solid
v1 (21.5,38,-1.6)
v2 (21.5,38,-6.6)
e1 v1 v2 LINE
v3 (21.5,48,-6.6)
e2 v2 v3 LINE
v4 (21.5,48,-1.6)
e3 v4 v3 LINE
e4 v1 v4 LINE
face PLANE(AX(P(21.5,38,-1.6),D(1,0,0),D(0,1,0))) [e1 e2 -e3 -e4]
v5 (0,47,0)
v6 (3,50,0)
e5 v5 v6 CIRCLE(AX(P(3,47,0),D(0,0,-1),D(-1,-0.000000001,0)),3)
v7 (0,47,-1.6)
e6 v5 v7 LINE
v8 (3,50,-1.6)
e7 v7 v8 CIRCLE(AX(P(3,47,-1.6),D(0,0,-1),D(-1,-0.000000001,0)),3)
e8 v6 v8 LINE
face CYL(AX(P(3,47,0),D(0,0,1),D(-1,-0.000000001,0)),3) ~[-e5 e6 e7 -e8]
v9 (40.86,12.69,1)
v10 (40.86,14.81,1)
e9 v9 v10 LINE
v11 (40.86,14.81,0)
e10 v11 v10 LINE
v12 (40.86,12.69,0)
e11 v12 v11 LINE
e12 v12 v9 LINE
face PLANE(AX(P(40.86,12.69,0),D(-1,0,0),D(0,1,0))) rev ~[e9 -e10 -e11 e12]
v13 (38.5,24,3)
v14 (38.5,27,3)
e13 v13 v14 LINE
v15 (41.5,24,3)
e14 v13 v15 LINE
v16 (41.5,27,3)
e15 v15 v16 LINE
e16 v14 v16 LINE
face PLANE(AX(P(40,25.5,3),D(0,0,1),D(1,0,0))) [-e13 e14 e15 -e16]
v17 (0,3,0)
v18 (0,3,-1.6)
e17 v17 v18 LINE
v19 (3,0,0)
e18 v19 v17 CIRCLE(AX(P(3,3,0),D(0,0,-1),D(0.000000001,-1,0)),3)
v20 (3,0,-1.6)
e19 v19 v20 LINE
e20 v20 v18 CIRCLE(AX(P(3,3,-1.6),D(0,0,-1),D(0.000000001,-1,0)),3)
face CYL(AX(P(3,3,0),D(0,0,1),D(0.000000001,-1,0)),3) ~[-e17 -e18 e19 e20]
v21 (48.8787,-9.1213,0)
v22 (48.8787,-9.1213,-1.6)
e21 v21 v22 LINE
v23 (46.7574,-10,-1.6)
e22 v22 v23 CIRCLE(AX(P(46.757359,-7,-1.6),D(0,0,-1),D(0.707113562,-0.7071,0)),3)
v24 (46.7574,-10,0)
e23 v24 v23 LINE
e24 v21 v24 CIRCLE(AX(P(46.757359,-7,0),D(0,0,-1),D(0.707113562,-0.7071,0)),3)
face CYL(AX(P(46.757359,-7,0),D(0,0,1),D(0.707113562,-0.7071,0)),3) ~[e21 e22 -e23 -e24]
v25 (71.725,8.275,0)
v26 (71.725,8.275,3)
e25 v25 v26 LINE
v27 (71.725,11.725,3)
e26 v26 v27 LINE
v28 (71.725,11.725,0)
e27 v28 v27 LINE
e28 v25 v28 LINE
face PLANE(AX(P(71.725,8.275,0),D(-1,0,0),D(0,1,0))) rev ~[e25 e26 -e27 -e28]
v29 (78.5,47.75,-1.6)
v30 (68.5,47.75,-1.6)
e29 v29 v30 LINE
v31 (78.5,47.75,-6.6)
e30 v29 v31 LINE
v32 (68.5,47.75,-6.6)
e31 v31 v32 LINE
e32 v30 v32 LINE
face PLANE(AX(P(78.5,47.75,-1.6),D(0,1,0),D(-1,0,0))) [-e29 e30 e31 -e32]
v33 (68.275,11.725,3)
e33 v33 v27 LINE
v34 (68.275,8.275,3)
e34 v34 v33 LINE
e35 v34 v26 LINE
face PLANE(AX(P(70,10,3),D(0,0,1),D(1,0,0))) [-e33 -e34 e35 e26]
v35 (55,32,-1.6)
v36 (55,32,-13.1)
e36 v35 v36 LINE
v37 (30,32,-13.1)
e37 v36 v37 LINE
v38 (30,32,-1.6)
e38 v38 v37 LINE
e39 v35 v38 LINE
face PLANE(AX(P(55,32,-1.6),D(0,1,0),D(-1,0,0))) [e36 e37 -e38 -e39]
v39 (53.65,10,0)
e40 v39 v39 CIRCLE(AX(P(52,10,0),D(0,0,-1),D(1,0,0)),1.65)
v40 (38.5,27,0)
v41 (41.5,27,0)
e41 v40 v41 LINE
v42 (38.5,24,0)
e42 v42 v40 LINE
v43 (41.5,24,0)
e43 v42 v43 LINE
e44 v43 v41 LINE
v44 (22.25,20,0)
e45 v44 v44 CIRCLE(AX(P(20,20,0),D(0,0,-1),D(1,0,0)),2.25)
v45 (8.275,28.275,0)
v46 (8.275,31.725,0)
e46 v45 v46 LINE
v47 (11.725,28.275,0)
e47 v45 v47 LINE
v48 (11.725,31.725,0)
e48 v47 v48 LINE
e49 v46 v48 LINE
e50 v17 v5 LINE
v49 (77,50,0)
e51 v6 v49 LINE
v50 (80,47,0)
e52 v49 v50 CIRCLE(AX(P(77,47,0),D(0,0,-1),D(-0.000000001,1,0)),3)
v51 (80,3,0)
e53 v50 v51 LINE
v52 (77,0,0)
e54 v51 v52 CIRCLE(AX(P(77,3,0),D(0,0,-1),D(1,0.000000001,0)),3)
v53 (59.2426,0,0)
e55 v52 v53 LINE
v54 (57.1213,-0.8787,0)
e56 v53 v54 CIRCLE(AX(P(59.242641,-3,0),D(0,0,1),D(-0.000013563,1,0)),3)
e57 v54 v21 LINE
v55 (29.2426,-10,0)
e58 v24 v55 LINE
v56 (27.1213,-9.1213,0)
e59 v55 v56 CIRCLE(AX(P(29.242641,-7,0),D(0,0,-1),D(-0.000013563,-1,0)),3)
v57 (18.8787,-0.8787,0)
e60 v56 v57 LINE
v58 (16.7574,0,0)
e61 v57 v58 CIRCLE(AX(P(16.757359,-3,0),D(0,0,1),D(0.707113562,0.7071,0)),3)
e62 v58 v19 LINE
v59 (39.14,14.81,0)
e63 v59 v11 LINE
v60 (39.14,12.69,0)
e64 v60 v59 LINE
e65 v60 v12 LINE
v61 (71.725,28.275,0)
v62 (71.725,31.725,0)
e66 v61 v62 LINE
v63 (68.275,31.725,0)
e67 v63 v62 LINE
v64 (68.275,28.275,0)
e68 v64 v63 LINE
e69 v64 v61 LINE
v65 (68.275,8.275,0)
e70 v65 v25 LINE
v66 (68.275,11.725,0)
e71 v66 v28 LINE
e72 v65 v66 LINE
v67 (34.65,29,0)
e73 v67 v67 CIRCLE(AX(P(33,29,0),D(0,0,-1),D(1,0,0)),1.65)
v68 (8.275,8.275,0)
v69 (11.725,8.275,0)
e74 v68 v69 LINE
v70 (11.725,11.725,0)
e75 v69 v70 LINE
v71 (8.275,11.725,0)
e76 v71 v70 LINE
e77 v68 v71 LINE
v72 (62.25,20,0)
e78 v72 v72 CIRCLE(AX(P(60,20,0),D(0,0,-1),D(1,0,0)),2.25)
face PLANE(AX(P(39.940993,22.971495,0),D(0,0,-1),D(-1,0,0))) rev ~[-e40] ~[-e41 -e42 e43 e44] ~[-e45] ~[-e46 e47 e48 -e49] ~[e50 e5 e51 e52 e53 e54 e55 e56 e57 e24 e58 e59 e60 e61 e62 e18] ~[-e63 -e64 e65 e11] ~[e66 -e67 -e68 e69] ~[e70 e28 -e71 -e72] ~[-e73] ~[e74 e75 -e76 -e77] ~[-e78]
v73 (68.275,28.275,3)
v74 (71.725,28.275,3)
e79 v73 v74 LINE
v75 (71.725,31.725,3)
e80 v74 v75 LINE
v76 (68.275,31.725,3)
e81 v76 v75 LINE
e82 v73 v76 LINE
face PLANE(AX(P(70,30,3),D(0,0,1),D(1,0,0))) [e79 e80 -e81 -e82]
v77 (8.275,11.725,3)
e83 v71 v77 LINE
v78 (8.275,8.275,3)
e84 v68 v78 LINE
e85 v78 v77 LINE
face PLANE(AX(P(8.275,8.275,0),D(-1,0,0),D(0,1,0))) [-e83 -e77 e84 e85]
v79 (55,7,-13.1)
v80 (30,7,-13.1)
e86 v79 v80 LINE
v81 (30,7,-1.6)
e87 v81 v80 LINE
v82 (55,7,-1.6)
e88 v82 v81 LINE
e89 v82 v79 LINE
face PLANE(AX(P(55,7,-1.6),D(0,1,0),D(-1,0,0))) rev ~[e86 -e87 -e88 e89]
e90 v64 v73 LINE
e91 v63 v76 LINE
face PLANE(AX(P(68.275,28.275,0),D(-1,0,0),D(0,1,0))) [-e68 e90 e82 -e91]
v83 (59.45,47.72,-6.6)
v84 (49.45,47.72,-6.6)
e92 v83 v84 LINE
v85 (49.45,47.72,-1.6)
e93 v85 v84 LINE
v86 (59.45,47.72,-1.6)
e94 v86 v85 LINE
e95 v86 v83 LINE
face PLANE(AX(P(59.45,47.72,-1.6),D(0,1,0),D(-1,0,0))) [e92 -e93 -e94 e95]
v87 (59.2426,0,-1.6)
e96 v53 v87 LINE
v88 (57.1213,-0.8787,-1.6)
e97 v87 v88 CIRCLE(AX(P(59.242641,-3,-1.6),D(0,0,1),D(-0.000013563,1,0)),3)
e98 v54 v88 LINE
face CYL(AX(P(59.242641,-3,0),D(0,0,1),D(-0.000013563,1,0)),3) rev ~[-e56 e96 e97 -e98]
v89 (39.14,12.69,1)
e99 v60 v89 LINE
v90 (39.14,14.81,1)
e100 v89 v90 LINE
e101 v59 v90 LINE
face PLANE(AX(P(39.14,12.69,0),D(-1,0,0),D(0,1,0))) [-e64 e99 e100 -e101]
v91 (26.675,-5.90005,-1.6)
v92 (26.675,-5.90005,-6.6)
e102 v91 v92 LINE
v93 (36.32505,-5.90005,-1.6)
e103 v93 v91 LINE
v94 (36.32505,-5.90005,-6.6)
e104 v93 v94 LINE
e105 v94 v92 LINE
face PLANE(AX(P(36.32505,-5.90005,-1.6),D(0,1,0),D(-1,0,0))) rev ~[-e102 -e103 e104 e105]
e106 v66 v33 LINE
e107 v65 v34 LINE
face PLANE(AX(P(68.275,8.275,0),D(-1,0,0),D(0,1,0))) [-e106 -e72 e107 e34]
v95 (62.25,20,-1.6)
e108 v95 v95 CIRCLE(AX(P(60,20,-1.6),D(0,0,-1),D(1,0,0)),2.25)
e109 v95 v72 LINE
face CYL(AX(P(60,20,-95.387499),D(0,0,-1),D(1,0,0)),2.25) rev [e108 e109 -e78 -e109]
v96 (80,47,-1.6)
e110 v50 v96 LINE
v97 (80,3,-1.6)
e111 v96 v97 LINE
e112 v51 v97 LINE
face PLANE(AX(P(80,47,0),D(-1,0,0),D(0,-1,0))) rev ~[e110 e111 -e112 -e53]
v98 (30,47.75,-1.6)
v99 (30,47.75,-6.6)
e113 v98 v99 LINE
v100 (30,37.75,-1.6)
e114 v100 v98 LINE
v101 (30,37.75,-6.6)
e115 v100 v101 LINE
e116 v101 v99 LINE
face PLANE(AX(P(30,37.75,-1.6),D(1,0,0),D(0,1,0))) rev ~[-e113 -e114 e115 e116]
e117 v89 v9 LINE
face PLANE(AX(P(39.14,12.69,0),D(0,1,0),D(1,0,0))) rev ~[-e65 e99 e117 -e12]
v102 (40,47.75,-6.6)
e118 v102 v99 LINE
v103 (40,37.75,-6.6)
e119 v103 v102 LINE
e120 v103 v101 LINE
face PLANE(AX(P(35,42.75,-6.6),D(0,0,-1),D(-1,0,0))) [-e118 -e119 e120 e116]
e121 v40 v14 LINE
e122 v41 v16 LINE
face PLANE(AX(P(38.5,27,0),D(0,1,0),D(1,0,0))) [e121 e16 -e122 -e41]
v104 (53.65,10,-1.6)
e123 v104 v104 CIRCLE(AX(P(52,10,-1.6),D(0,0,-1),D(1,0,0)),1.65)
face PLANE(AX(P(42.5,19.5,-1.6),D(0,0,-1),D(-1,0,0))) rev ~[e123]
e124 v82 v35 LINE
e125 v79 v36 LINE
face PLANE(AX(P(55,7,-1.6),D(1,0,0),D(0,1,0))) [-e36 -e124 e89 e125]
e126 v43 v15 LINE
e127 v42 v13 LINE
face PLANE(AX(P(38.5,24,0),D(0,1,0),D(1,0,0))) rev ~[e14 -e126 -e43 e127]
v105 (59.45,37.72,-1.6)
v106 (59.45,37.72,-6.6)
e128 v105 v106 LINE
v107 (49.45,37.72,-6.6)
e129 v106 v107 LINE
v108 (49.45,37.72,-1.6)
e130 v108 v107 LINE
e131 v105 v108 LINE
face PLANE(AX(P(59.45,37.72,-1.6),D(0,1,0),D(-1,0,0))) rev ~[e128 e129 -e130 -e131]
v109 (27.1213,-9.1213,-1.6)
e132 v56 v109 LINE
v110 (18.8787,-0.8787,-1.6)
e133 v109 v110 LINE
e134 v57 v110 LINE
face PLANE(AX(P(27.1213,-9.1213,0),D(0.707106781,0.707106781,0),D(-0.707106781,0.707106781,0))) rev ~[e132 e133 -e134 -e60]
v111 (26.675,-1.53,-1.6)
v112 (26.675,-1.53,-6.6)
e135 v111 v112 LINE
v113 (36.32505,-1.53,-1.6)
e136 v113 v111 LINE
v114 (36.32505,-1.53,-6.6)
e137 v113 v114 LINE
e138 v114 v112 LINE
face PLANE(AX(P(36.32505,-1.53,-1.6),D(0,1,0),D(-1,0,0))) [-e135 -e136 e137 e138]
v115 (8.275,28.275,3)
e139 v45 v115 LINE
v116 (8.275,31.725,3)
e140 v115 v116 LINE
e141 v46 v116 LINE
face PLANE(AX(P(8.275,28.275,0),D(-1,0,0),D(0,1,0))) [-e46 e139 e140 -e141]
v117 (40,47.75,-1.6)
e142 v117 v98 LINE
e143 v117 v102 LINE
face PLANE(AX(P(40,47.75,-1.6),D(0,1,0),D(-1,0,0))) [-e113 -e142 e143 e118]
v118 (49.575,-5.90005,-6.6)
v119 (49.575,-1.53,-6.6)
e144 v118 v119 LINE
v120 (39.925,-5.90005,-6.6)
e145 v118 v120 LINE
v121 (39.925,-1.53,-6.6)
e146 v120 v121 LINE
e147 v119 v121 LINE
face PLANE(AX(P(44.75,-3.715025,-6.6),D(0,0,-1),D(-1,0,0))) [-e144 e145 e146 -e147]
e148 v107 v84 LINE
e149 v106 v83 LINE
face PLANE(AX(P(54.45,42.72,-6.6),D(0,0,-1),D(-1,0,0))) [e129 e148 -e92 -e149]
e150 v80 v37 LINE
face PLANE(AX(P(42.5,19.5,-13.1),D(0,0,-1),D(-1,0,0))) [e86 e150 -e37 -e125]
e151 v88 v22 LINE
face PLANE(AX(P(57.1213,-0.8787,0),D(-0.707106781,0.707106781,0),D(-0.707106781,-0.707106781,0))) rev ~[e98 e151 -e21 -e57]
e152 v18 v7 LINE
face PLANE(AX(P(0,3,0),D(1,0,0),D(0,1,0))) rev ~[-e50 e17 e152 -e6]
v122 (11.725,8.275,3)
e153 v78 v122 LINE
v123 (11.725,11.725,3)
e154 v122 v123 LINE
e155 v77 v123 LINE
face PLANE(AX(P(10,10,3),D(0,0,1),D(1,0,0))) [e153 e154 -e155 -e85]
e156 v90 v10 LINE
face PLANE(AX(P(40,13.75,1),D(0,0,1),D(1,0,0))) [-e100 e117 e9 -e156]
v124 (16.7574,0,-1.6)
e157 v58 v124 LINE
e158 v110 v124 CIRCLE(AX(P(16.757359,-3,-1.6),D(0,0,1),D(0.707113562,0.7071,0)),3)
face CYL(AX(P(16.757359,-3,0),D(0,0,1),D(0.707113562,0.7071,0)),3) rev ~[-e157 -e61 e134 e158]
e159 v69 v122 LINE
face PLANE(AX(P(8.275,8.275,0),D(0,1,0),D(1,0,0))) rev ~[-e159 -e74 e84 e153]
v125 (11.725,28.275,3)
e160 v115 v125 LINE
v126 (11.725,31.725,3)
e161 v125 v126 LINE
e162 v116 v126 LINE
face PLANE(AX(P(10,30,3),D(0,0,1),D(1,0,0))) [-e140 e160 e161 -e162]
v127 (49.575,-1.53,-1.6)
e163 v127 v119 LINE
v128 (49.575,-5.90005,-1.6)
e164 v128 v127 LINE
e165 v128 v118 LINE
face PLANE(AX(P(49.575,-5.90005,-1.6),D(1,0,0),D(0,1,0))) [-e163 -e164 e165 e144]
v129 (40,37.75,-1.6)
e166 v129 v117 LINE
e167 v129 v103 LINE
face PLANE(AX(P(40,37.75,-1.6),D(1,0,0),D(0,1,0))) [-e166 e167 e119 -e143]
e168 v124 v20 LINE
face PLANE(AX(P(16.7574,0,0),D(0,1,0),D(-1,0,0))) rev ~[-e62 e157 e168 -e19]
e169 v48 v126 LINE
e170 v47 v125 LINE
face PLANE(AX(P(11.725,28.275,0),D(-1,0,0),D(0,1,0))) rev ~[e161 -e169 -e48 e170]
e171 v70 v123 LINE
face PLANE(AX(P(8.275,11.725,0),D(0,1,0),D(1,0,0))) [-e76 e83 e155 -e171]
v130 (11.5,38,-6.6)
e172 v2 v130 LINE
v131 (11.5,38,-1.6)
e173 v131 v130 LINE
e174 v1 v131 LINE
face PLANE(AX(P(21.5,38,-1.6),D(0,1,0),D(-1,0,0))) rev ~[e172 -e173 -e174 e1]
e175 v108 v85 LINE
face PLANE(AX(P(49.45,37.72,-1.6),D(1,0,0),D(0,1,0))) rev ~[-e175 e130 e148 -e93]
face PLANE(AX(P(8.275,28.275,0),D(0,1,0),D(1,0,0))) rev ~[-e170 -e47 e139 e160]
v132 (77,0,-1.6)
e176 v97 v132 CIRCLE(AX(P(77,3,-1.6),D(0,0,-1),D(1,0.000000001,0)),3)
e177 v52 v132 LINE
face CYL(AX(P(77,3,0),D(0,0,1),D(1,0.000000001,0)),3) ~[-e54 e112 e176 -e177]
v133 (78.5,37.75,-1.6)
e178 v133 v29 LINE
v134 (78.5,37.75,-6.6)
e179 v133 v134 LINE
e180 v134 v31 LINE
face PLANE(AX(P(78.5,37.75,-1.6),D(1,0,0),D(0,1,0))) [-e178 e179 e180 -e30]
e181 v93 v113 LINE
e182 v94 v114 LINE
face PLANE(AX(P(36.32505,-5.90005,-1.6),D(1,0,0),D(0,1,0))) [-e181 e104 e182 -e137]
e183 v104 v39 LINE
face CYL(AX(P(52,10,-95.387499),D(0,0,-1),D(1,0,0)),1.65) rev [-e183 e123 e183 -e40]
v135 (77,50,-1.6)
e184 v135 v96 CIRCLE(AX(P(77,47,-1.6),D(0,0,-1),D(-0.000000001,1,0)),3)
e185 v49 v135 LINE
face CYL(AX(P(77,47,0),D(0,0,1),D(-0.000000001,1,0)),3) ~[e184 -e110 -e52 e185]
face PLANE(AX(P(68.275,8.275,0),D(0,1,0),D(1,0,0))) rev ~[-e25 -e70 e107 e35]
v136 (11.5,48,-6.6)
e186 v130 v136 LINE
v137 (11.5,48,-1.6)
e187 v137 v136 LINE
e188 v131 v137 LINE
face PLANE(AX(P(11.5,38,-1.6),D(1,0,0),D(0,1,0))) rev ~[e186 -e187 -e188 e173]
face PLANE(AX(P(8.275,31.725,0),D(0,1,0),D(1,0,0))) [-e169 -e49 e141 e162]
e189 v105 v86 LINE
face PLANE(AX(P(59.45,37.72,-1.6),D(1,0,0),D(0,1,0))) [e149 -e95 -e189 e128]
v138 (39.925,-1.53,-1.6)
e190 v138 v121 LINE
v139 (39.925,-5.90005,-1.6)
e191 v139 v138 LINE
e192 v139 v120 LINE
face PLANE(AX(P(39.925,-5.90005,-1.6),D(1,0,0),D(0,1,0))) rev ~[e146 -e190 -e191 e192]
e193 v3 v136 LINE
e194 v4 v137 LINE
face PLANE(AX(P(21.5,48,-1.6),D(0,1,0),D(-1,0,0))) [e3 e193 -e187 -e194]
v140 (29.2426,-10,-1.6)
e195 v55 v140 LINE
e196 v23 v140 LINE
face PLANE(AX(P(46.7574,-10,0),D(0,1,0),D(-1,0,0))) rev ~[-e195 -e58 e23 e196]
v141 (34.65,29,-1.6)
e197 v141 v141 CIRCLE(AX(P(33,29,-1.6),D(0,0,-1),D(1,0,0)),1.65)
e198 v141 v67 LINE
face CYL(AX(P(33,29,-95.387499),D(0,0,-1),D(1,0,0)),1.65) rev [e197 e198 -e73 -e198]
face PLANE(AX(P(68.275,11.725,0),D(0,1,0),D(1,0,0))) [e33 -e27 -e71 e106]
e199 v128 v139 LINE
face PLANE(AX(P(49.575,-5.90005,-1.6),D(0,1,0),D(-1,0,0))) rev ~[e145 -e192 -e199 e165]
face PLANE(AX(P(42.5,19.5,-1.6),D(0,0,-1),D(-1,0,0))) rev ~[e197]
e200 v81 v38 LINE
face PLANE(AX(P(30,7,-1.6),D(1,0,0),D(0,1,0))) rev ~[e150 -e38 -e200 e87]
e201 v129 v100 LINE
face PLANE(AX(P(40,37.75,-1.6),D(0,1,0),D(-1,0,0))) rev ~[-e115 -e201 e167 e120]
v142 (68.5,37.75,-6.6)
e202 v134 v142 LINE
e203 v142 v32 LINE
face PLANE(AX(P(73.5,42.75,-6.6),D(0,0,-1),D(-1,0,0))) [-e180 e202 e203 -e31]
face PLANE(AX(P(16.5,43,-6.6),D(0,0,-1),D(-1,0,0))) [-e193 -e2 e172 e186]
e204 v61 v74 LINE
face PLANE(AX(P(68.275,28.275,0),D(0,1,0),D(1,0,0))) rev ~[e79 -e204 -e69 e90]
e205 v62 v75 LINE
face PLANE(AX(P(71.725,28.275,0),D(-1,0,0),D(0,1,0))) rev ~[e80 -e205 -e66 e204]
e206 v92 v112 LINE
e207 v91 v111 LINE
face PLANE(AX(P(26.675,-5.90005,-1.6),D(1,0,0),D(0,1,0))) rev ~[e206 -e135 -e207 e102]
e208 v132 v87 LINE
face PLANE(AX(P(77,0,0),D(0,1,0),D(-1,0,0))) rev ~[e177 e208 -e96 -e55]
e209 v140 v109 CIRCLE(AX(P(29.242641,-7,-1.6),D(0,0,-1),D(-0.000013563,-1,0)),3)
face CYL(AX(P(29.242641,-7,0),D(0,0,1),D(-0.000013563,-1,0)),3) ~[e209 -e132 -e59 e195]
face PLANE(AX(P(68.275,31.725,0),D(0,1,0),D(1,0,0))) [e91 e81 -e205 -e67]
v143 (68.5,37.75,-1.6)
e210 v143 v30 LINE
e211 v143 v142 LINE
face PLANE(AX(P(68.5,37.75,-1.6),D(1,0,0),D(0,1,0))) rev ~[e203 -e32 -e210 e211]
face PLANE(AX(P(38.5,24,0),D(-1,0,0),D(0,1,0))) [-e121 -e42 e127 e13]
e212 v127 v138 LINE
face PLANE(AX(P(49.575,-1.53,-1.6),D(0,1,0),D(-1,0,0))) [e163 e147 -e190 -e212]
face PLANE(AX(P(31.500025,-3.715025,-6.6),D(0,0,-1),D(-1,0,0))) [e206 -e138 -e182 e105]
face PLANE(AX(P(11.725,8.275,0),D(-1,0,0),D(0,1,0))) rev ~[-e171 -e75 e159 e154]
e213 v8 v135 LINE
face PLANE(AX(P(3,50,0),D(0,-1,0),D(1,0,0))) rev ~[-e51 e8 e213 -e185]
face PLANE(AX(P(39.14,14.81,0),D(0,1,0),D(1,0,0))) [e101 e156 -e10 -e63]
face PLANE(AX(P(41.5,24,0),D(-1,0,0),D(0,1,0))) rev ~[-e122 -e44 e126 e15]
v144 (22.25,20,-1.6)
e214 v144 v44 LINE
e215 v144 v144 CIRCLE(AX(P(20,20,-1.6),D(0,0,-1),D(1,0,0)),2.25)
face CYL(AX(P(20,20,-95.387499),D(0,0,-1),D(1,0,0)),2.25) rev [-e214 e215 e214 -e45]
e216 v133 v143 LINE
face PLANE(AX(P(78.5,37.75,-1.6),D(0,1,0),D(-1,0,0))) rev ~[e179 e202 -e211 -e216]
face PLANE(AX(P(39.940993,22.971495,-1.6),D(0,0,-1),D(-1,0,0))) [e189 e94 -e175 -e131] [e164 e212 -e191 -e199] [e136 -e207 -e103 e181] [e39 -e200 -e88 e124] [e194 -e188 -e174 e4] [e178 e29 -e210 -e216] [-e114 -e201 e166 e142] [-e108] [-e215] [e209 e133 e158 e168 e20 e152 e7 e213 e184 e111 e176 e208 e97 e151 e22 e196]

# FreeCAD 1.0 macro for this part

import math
import FreeCAD as App
import Part
import Sketcher

V = App.Vector

doc = App.newDocument("Part")
body = doc.addObject("PartDesign::Body", "Body")

# Sketch on XY plane
sketch1 = doc.addObject("Sketcher::SketchObject", "Sketch")
body.addObject(sketch1)
sketch1.AttachmentSupport = (doc.XY_Plane, [""])
sketch1.MapMode = "FlatFace"
sketch1.addGeometry(Part.LineSegment(V(0, 47, 0), V(0, 3, 0)), False)
sketch1.addGeometry(Part.ArcOfCircle(Part.Circle(V(3, 3, 0), V(0, 0, 1), 3), math.radians(180), math.radians(270)), False)
sketch1.addGeometry(Part.LineSegment(V(3, 0, 0), V(16.8, 0, 0)), False)
sketch1.addGeometry(Part.ArcOfCircle(Part.Circle(V(16.8, -3, 0), V(0, 0, 1), 3), math.radians(45), math.radians(90)), False)
sketch1.addGeometry(Part.LineSegment(V(18.9, -0.9, 0), V(27.1, -9.1, 0)), False)
sketch1.addGeometry(Part.ArcOfCircle(Part.Circle(V(29.2, -7, 0), V(0, 0, 1), 3), math.radians(-135), math.radians(-90)), False)
sketch1.addGeometry(Part.LineSegment(V(29.2, -10, 0), V(46.8, -10, 0)), False)
sketch1.addGeometry(Part.ArcOfCircle(Part.Circle(V(46.8, -7, 0), V(0, 0, 1), 3), math.radians(-90), math.radians(-45)), False)
sketch1.addGeometry(Part.LineSegment(V(48.9, -9.1, 0), V(57.1, -0.9, 0)), False)
sketch1.addGeometry(Part.ArcOfCircle(Part.Circle(V(59.2, -3, 0), V(0, 0, 1), 3), math.radians(90), math.radians(135)), False)
sketch1.addGeometry(Part.LineSegment(V(59.2, 0, 0), V(77, 0, 0)), False)
sketch1.addGeometry(Part.ArcOfCircle(Part.Circle(V(77, 3, 0), V(0, 0, 1), 3), math.radians(-90), math.radians(0)), False)
sketch1.addGeometry(Part.LineSegment(V(80, 3, 0), V(80, 47, 0)), False)
sketch1.addGeometry(Part.ArcOfCircle(Part.Circle(V(77, 47, 0), V(0, 0, 1), 3), math.radians(0), math.radians(90)), False)
sketch1.addGeometry(Part.LineSegment(V(77, 50, 0), V(3, 50, 0)), False)
sketch1.addGeometry(Part.ArcOfCircle(Part.Circle(V(3, 47, 0), V(0, 0, 1), 3), math.radians(90), math.radians(180)), False)
sketch1.addConstraint(Sketcher.Constraint("Tangent", 0, 2, 1, 1))
sketch1.addConstraint(Sketcher.Constraint("Tangent", 1, 2, 2, 1))
sketch1.addConstraint(Sketcher.Constraint("Coincident", 2, 2, 3, 2))
sketch1.addConstraint(Sketcher.Constraint("Coincident", 3, 1, 4, 1))
sketch1.addConstraint(Sketcher.Constraint("Coincident", 4, 2, 5, 1))
sketch1.addConstraint(Sketcher.Constraint("Coincident", 5, 2, 6, 1))
sketch1.addConstraint(Sketcher.Constraint("Coincident", 6, 2, 7, 1))
sketch1.addConstraint(Sketcher.Constraint("Coincident", 7, 2, 8, 1))
sketch1.addConstraint(Sketcher.Constraint("Coincident", 8, 2, 9, 2))
sketch1.addConstraint(Sketcher.Constraint("Coincident", 9, 1, 10, 1))
sketch1.addConstraint(Sketcher.Constraint("Tangent", 10, 2, 11, 1))
sketch1.addConstraint(Sketcher.Constraint("Tangent", 11, 2, 12, 1))
sketch1.addConstraint(Sketcher.Constraint("Tangent", 12, 2, 13, 1))
sketch1.addConstraint(Sketcher.Constraint("Tangent", 13, 2, 14, 1))
sketch1.addConstraint(Sketcher.Constraint("Tangent", 14, 2, 15, 1))
sketch1.addConstraint(Sketcher.Constraint("Tangent", 15, 2, 0, 1))
sketch1.addConstraint(Sketcher.Constraint("Vertical", 0))
sketch1.addConstraint(Sketcher.Constraint("Horizontal", 2))
sketch1.addConstraint(Sketcher.Constraint("Horizontal", 6))
sketch1.addConstraint(Sketcher.Constraint("Horizontal", 10))
sketch1.addConstraint(Sketcher.Constraint("Vertical", 12))
sketch1.addConstraint(Sketcher.Constraint("Horizontal", 14))
sketch1.addConstraint(Sketcher.Constraint("Equal", 1, 3))
sketch1.addConstraint(Sketcher.Constraint("Equal", 3, 5))
sketch1.addConstraint(Sketcher.Constraint("Equal", 5, 7))
sketch1.addConstraint(Sketcher.Constraint("Equal", 7, 9))
sketch1.addConstraint(Sketcher.Constraint("Equal", 9, 11))
sketch1.addConstraint(Sketcher.Constraint("Equal", 11, 13))
sketch1.addConstraint(Sketcher.Constraint("Equal", 13, 15))
sketch1.addConstraint(Sketcher.Constraint("PointOnObject", 0, 2, -2))
sketch1.addConstraint(Sketcher.Constraint("PointOnObject", 1, 2, -1))
sketch1.addConstraint(Sketcher.Constraint("PointOnObject", 9, 1, -1))
sketch1.addConstraint(Sketcher.Constraint("Perpendicular", 4, 8))
sketch1.addConstraint(Sketcher.Constraint("Horizontal", 4, 2, 7, 2))
sketch1.addConstraint(Sketcher.Constraint("Horizontal", 3, 1, 8, 2))
sketch1.addConstraint(Sketcher.Constraint("Equal", 4, 8))
sketch1.addConstraint(Sketcher.Constraint("Radius", 1, 3.0))
sketch1.addConstraint(Sketcher.Constraint("DistanceX", 14, 2, 14, 1, 74.0))
sketch1.addConstraint(Sketcher.Constraint("DistanceY", 0, 2, 0, 1, 44.0))
sketch1.addConstraint(Sketcher.Constraint("DistanceY", 5, 3, -1, 1, 7.0))
sketch1.addConstraint(Sketcher.Constraint("DistanceX", 3, 3, 7, 3, 30.0))
sketch1.addConstraint(Sketcher.Constraint("DistanceX", 2, 1, 2, 2, 13.7574))
sketch1.addConstraint(Sketcher.Constraint("DistanceX", 6, 1, 6, 2, 17.5148))
sketch1.addConstraint(Sketcher.Constraint("DistanceX", 10, 1, 10, 2, 17.7574))
sketch1.addConstraint(Sketcher.Constraint("DistanceX", -1, 1, 3, 1, 18.8787))
sketch1.addConstraint(Sketcher.Constraint("DistanceY", 3, 1, -1, 1, 0.8787))
sketch1.addConstraint(Sketcher.Constraint("DistanceX", -1, 1, 4, 2, 27.1213))
sketch1.addConstraint(Sketcher.Constraint("DistanceX", -1, 1, 5, 2, 29.2426))
pad1 = doc.addObject("PartDesign::Pad", "Pad")
body.addObject(pad1)
pad1.Profile = sketch1
pad1.Length = 1.6
pad1.Reversed = True

# Sketch on XY plane
sketch2 = doc.addObject("Sketcher::SketchObject", "Sketch001")
body.addObject(sketch2)
sketch2.AttachmentSupport = (doc.XY_Plane, [""])
sketch2.MapMode = "FlatFace"
sketch2.addGeometry(Part.LineSegment(V(8.3, 11.7, 0), V(8.3, 8.3, 0)), False)
sketch2.addGeometry(Part.LineSegment(V(8.3, 8.3, 0), V(11.7, 8.3, 0)), False)
sketch2.addGeometry(Part.LineSegment(V(11.7, 8.3, 0), V(11.7, 11.7, 0)), False)
sketch2.addGeometry(Part.LineSegment(V(11.7, 11.7, 0), V(8.3, 11.7, 0)), False)
sketch2.addGeometry(Part.LineSegment(V(8.3, 31.7, 0), V(8.3, 28.3, 0)), False)
sketch2.addGeometry(Part.LineSegment(V(8.3, 28.3, 0), V(11.7, 28.3, 0)), False)
sketch2.addGeometry(Part.LineSegment(V(11.7, 28.3, 0), V(11.7, 31.7, 0)), False)
sketch2.addGeometry(Part.LineSegment(V(11.7, 31.7, 0), V(8.3, 31.7, 0)), False)
sketch2.addConstraint(Sketcher.Constraint("Coincident", 0, 2, 1, 1))
sketch2.addConstraint(Sketcher.Constraint("Coincident", 1, 2, 2, 1))
sketch2.addConstraint(Sketcher.Constraint("Coincident", 2, 2, 3, 1))
sketch2.addConstraint(Sketcher.Constraint("Coincident", 3, 2, 0, 1))
sketch2.addConstraint(Sketcher.Constraint("Coincident", 4, 2, 5, 1))
sketch2.addConstraint(Sketcher.Constraint("Coincident", 5, 2, 6, 1))
sketch2.addConstraint(Sketcher.Constraint("Coincident", 6, 2, 7, 1))
sketch2.addConstraint(Sketcher.Constraint("Coincident", 7, 2, 4, 1))
sketch2.addConstraint(Sketcher.Constraint("Vertical", 0))
sketch2.addConstraint(Sketcher.Constraint("Horizontal", 1))
sketch2.addConstraint(Sketcher.Constraint("Vertical", 2))
sketch2.addConstraint(Sketcher.Constraint("Horizontal", 3))
sketch2.addConstraint(Sketcher.Constraint("Vertical", 4))
sketch2.addConstraint(Sketcher.Constraint("Horizontal", 5))
sketch2.addConstraint(Sketcher.Constraint("Vertical", 6))
sketch2.addConstraint(Sketcher.Constraint("Horizontal", 7))
sketch2.addConstraint(Sketcher.Constraint("Vertical", 3, 2, 4, 2))
sketch2.addConstraint(Sketcher.Constraint("Vertical", 2, 2, 5, 2))
sketch2.addConstraint(Sketcher.Constraint("Equal", 7, 0))
sketch2.addConstraint(Sketcher.Constraint("Equal", 2, 4))
sketch2.addConstraint(Sketcher.Constraint("DistanceY", 0, 2, 4, 2, 20.0))
sketch2.addConstraint(Sketcher.Constraint("DistanceX", 1, 1, 1, 2, 3.45))
sketch2.addConstraint(Sketcher.Constraint("DistanceX", -1, 1, 0, 2, 8.275))
sketch2.addConstraint(Sketcher.Constraint("DistanceY", -1, 1, 0, 2, 8.275))
pad2 = doc.addObject("PartDesign::Pad", "Pad001")
body.addObject(pad2)
pad2.Profile = sketch2
pad2.Length = 3

# Sketch on XY plane
sketch3 = doc.addObject("Sketcher::SketchObject", "Sketch002")
body.addObject(sketch3)
sketch3.AttachmentSupport = (doc.XY_Plane, [""])
sketch3.MapMode = "FlatFace"
sketch3.addGeometry(Part.LineSegment(V(68.3, 11.7, 0), V(68.3, 8.3, 0)), False)
sketch3.addGeometry(Part.LineSegment(V(68.3, 8.3, 0), V(71.7, 8.3, 0)), False)
sketch3.addGeometry(Part.LineSegment(V(71.7, 8.3, 0), V(71.7, 11.7, 0)), False)
sketch3.addGeometry(Part.LineSegment(V(71.7, 11.7, 0), V(68.3, 11.7, 0)), False)
sketch3.addGeometry(Part.LineSegment(V(68.3, 31.7, 0), V(68.3, 28.3, 0)), False)
sketch3.addGeometry(Part.LineSegment(V(68.3, 28.3, 0), V(71.7, 28.3, 0)), False)
sketch3.addGeometry(Part.LineSegment(V(71.7, 28.3, 0), V(71.7, 31.7, 0)), False)
sketch3.addGeometry(Part.LineSegment(V(71.7, 31.7, 0), V(68.3, 31.7, 0)), False)
sketch3.addConstraint(Sketcher.Constraint("Coincident", 0, 2, 1, 1))
sketch3.addConstraint(Sketcher.Constraint("Coincident", 1, 2, 2, 1))
sketch3.addConstraint(Sketcher.Constraint("Coincident", 2, 2, 3, 1))
sketch3.addConstraint(Sketcher.Constraint("Coincident", 3, 2, 0, 1))
sketch3.addConstraint(Sketcher.Constraint("Coincident", 4, 2, 5, 1))
sketch3.addConstraint(Sketcher.Constraint("Coincident", 5, 2, 6, 1))
sketch3.addConstraint(Sketcher.Constraint("Coincident", 6, 2, 7, 1))
sketch3.addConstraint(Sketcher.Constraint("Coincident", 7, 2, 4, 1))
sketch3.addConstraint(Sketcher.Constraint("Vertical", 0))
sketch3.addConstraint(Sketcher.Constraint("Horizontal", 1))
sketch3.addConstraint(Sketcher.Constraint("Vertical", 2))
sketch3.addConstraint(Sketcher.Constraint("Horizontal", 3))
sketch3.addConstraint(Sketcher.Constraint("Vertical", 4))
sketch3.addConstraint(Sketcher.Constraint("Horizontal", 5))
sketch3.addConstraint(Sketcher.Constraint("Vertical", 6))
sketch3.addConstraint(Sketcher.Constraint("Horizontal", 7))
sketch3.addConstraint(Sketcher.Constraint("Vertical", 3, 2, 4, 2))
sketch3.addConstraint(Sketcher.Constraint("Vertical", 2, 2, 5, 2))
sketch3.addConstraint(Sketcher.Constraint("Equal", 7, 0))
sketch3.addConstraint(Sketcher.Constraint("Equal", 2, 4))
sketch3.addConstraint(Sketcher.Constraint("DistanceY", 0, 2, 4, 2, 20.0))
sketch3.addConstraint(Sketcher.Constraint("DistanceX", 1, 1, 1, 2, 3.45))
sketch3.addConstraint(Sketcher.Constraint("DistanceX", -1, 1, 0, 2, 68.275))
sketch3.addConstraint(Sketcher.Constraint("DistanceY", -1, 1, 0, 2, 8.275))
pad3 = doc.addObject("PartDesign::Pad", "Pad002")
body.addObject(pad3)
pad3.Profile = sketch3
pad3.Length = 3

# Sketch on XY plane
sketch4 = doc.addObject("Sketcher::SketchObject", "Sketch003")
body.addObject(sketch4)
sketch4.AttachmentSupport = (doc.XY_Plane, [""])
sketch4.MapMode = "FlatFace"
sketch4.addGeometry(Part.LineSegment(V(38.5, 27, 0), V(38.5, 24, 0)), False)
sketch4.addGeometry(Part.LineSegment(V(38.5, 24, 0), V(41.5, 24, 0)), False)
sketch4.addGeometry(Part.LineSegment(V(41.5, 24, 0), V(41.5, 27, 0)), False)
sketch4.addGeometry(Part.LineSegment(V(41.5, 27, 0), V(38.5, 27, 0)), False)
sketch4.addConstraint(Sketcher.Constraint("Coincident", 0, 2, 1, 1))
sketch4.addConstraint(Sketcher.Constraint("Coincident", 1, 2, 2, 1))
sketch4.addConstraint(Sketcher.Constraint("Coincident", 2, 2, 3, 1))
sketch4.addConstraint(Sketcher.Constraint("Coincident", 3, 2, 0, 1))
sketch4.addConstraint(Sketcher.Constraint("Vertical", 0))
sketch4.addConstraint(Sketcher.Constraint("Horizontal", 1))
sketch4.addConstraint(Sketcher.Constraint("Vertical", 2))
sketch4.addConstraint(Sketcher.Constraint("Horizontal", 3))
sketch4.addConstraint(Sketcher.Constraint("Equal", 3, 0))
sketch4.addConstraint(Sketcher.Constraint("DistanceX", 1, 1, 1, 2, 3.0))
sketch4.addConstraint(Sketcher.Constraint("DistanceY", -1, 1, 0, 2, 24.0))
sketch4.addConstraint(Sketcher.Constraint("DistanceX", -1, 1, 0, 2, 38.5))
pad4 = doc.addObject("PartDesign::Pad", "Pad003")
body.addObject(pad4)
pad4.Profile = sketch4
pad4.Length = 3

# Sketch on XY plane
sketch5 = doc.addObject("Sketcher::SketchObject", "Sketch004")
body.addObject(sketch5)
sketch5.AttachmentSupport = (doc.XY_Plane, [""])
sketch5.MapMode = "FlatFace"
sketch5.addGeometry(Part.LineSegment(V(39.1, 14.8, 0), V(39.1, 12.7, 0)), False)
sketch5.addGeometry(Part.LineSegment(V(39.1, 12.7, 0), V(40.9, 12.7, 0)), False)
sketch5.addGeometry(Part.LineSegment(V(40.9, 12.7, 0), V(40.9, 14.8, 0)), False)
sketch5.addGeometry(Part.LineSegment(V(40.9, 14.8, 0), V(39.1, 14.8, 0)), False)
sketch5.addConstraint(Sketcher.Constraint("Coincident", 0, 2, 1, 1))
sketch5.addConstraint(Sketcher.Constraint("Coincident", 1, 2, 2, 1))
sketch5.addConstraint(Sketcher.Constraint("Coincident", 2, 2, 3, 1))
sketch5.addConstraint(Sketcher.Constraint("Coincident", 3, 2, 0, 1))
sketch5.addConstraint(Sketcher.Constraint("Vertical", 0))
sketch5.addConstraint(Sketcher.Constraint("Horizontal", 1))
sketch5.addConstraint(Sketcher.Constraint("Vertical", 2))
sketch5.addConstraint(Sketcher.Constraint("Horizontal", 3))
sketch5.addConstraint(Sketcher.Constraint("DistanceX", 1, 1, 1, 2, 1.72))
sketch5.addConstraint(Sketcher.Constraint("DistanceY", 0, 2, 0, 1, 2.12))
sketch5.addConstraint(Sketcher.Constraint("DistanceX", -1, 1, 0, 2, 39.14))
sketch5.addConstraint(Sketcher.Constraint("DistanceY", -1, 1, 0, 2, 12.69))
pad5 = doc.addObject("PartDesign::Pad", "Pad004")
body.addObject(pad5)
pad5.Profile = sketch5
pad5.Length = 1

# Sketch on XY plane
sketch6 = doc.addObject("Sketcher::SketchObject", "Sketch005")
body.addObject(sketch6)
sketch6.AttachmentSupport = (doc.XY_Plane, [""])
sketch6.MapMode = "FlatFace"
sketch6.addGeometry(Part.Circle(V(20, 20, 0), V(0, 0, 1), 2.2), False)
sketch6.addGeometry(Part.Circle(V(60, 20, 0), V(0, 0, 1), 2.2), False)
sketch6.addGeometry(Part.Circle(V(33, 29, 0), V(0, 0, 1), 1.6), False)
sketch6.addGeometry(Part.Circle(V(52, 10, 0), V(0, 0, 1), 1.6), False)
sketch6.addConstraint(Sketcher.Constraint("Equal", 0, 1))
sketch6.addConstraint(Sketcher.Constraint("Equal", 2, 3))
sketch6.addConstraint(Sketcher.Constraint("Horizontal", 0, 3, 1, 3))
sketch6.addConstraint(Sketcher.Constraint("Diameter", 0, 4.5))
sketch6.addConstraint(Sketcher.Constraint("Diameter", 2, 3.3))
sketch6.addConstraint(Sketcher.Constraint("DistanceX", -1, 1, 0, 3, 20.0))
sketch6.addConstraint(Sketcher.Constraint("DistanceY", -1, 1, 0, 3, 20.0))
sketch6.addConstraint(Sketcher.Constraint("DistanceX", -1, 1, 1, 3, 60.0))
sketch6.addConstraint(Sketcher.Constraint("DistanceX", -1, 1, 2, 3, 33.0))
sketch6.addConstraint(Sketcher.Constraint("DistanceY", -1, 1, 2, 3, 29.0))
sketch6.addConstraint(Sketcher.Constraint("DistanceX", -1, 1, 3, 3, 52.0))
sketch6.addConstraint(Sketcher.Constraint("DistanceY", -1, 1, 3, 3, 10.0))
pocket1 = doc.addObject("PartDesign::Pocket", "Pocket")
body.addObject(pocket1)
pocket1.Profile = sketch6
pocket1.Type = "ThroughAll"
pocket1.Midplane = True

# Sketch on XY plane
sketch7 = doc.addObject("Sketcher::SketchObject", "Sketch006")
body.addObject(sketch7)
sketch7.AttachmentSupport = (doc.XY_Plane, [""])
sketch7.MapMode = "FlatFace"
sketch7.AttachmentOffset = App.Placement(V(0, 0, -1.6), App.Rotation())
sketch7.addGeometry(Part.LineSegment(V(55, 32, 0), V(55, 7, 0)), False)
sketch7.addGeometry(Part.LineSegment(V(55, 7, 0), V(30, 7, 0)), False)
sketch7.addGeometry(Part.LineSegment(V(30, 7, 0), V(30, 32, 0)), False)
sketch7.addGeometry(Part.LineSegment(V(30, 32, 0), V(55, 32, 0)), False)
sketch7.addConstraint(Sketcher.Constraint("Coincident", 0, 2, 1, 1))
sketch7.addConstraint(Sketcher.Constraint("Coincident", 1, 2, 2, 1))
sketch7.addConstraint(Sketcher.Constraint("Coincident", 2, 2, 3, 1))
sketch7.addConstraint(Sketcher.Constraint("Coincident", 3, 2, 0, 1))
sketch7.addConstraint(Sketcher.Constraint("Vertical", 0))
sketch7.addConstraint(Sketcher.Constraint("Horizontal", 1))
sketch7.addConstraint(Sketcher.Constraint("Vertical", 2))
sketch7.addConstraint(Sketcher.Constraint("Horizontal", 3))
sketch7.addConstraint(Sketcher.Constraint("Equal", 3, 0))
sketch7.addConstraint(Sketcher.Constraint("DistanceX", 1, 2, 1, 1, 25.0))
sketch7.addConstraint(Sketcher.Constraint("DistanceX", -1, 1, 0, 2, 55.0))
sketch7.addConstraint(Sketcher.Constraint("DistanceY", -1, 1, 0, 2, 7.0))
pad6 = doc.addObject("PartDesign::Pad", "Pad005")
body.addObject(pad6)
pad6.Profile = sketch7
pad6.Length = 11.5
pad6.Reversed = True

# Sketch on XY plane
sketch8 = doc.addObject("Sketcher::SketchObject", "Sketch007")
body.addObject(sketch8)
sketch8.AttachmentSupport = (doc.XY_Plane, [""])
sketch8.MapMode = "FlatFace"
sketch8.AttachmentOffset = App.Placement(V(0, 0, -1.6), App.Rotation())
sketch8.addGeometry(Part.LineSegment(V(22, 48, 0), V(22, 38, 0)), False)
sketch8.addGeometry(Part.LineSegment(V(22, 38, 0), V(12, 38, 0)), False)
sketch8.addGeometry(Part.LineSegment(V(12, 38, 0), V(12, 48, 0)), False)
sketch8.addGeometry(Part.LineSegment(V(12, 48, 0), V(22, 48, 0)), False)
sketch8.addGeometry(Part.LineSegment(V(40, 48, 0), V(40, 38, 0)), False)
sketch8.addGeometry(Part.LineSegment(V(40, 38, 0), V(30, 38, 0)), False)
sketch8.addGeometry(Part.LineSegment(V(30, 38, 0), V(30, 48, 0)), False)
sketch8.addGeometry(Part.LineSegment(V(30, 48, 0), V(40, 48, 0)), False)
sketch8.addGeometry(Part.LineSegment(V(59, 48, 0), V(59, 38, 0)), False)
sketch8.addGeometry(Part.LineSegment(V(59, 38, 0), V(49, 38, 0)), False)
sketch8.addGeometry(Part.LineSegment(V(49, 38, 0), V(49, 48, 0)), False)
sketch8.addGeometry(Part.LineSegment(V(49, 48, 0), V(59, 48, 0)), False)
sketch8.addGeometry(Part.LineSegment(V(78, 48, 0), V(78, 38, 0)), False)
sketch8.addGeometry(Part.LineSegment(V(78, 38, 0), V(68, 38, 0)), False)
sketch8.addGeometry(Part.LineSegment(V(68, 38, 0), V(68, 48, 0)), False)
sketch8.addGeometry(Part.LineSegment(V(68, 48, 0), V(78, 48, 0)), False)
sketch8.addConstraint(Sketcher.Constraint("Coincident", 0, 2, 1, 1))
sketch8.addConstraint(Sketcher.Constraint("Coincident", 1, 2, 2, 1))
sketch8.addConstraint(Sketcher.Constraint("Coincident", 2, 2, 3, 1))
sketch8.addConstraint(Sketcher.Constraint("Coincident", 3, 2, 0, 1))
sketch8.addConstraint(Sketcher.Constraint("Coincident", 4, 2, 5, 1))
sketch8.addConstraint(Sketcher.Constraint("Coincident", 5, 2, 6, 1))
sketch8.addConstraint(Sketcher.Constraint("Coincident", 6, 2, 7, 1))
sketch8.addConstraint(Sketcher.Constraint("Coincident", 7, 2, 4, 1))
sketch8.addConstraint(Sketcher.Constraint("Coincident", 8, 2, 9, 1))
sketch8.addConstraint(Sketcher.Constraint("Coincident", 9, 2, 10, 1))
sketch8.addConstraint(Sketcher.Constraint("Coincident", 10, 2, 11, 1))
sketch8.addConstraint(Sketcher.Constraint("Coincident", 11, 2, 8, 1))
sketch8.addConstraint(Sketcher.Constraint("Coincident", 12, 2, 13, 1))
sketch8.addConstraint(Sketcher.Constraint("Coincident", 13, 2, 14, 1))
sketch8.addConstraint(Sketcher.Constraint("Coincident", 14, 2, 15, 1))
sketch8.addConstraint(Sketcher.Constraint("Coincident", 15, 2, 12, 1))
sketch8.addConstraint(Sketcher.Constraint("Vertical", 0))
sketch8.addConstraint(Sketcher.Constraint("Horizontal", 1))
sketch8.addConstraint(Sketcher.Constraint("Vertical", 2))
sketch8.addConstraint(Sketcher.Constraint("Horizontal", 3))
sketch8.addConstraint(Sketcher.Constraint("Vertical", 4))
sketch8.addConstraint(Sketcher.Constraint("Horizontal", 5))
sketch8.addConstraint(Sketcher.Constraint("Vertical", 6))
sketch8.addConstraint(Sketcher.Constraint("Horizontal", 7))
sketch8.addConstraint(Sketcher.Constraint("Vertical", 8))
sketch8.addConstraint(Sketcher.Constraint("Horizontal", 9))
sketch8.addConstraint(Sketcher.Constraint("Vertical", 10))
sketch8.addConstraint(Sketcher.Constraint("Horizontal", 11))
sketch8.addConstraint(Sketcher.Constraint("Vertical", 12))
sketch8.addConstraint(Sketcher.Constraint("Horizontal", 13))
sketch8.addConstraint(Sketcher.Constraint("Vertical", 14))
sketch8.addConstraint(Sketcher.Constraint("Horizontal", 15))
sketch8.addConstraint(Sketcher.Constraint("Horizontal", 5, 2, 12, 2))
sketch8.addConstraint(Sketcher.Constraint("Horizontal", 7, 2, 14, 2))
sketch8.addConstraint(Sketcher.Constraint("Equal", 3, 5))
sketch8.addConstraint(Sketcher.Constraint("Equal", 7, 9))
sketch8.addConstraint(Sketcher.Constraint("Equal", 11, 13))
sketch8.addConstraint(Sketcher.Constraint("Equal", 15, 0))
sketch8.addConstraint(Sketcher.Constraint("Equal", 2, 4))
sketch8.addConstraint(Sketcher.Constraint("Equal", 6, 8))
sketch8.addConstraint(Sketcher.Constraint("DistanceX", 1, 2, 1, 1, 10.0))
sketch8.addConstraint(Sketcher.Constraint("DistanceY", -1, 1, 0, 2, 38.0))
sketch8.addConstraint(Sketcher.Constraint("DistanceX", -1, 1, 4, 2, 40.0))
sketch8.addConstraint(Sketcher.Constraint("DistanceX", -1, 1, 0, 2, 21.5))
sketch8.addConstraint(Sketcher.Constraint("DistanceX", -1, 1, 12, 2, 78.5))
sketch8.addConstraint(Sketcher.Constraint("DistanceY", -1, 1, 4, 2, 37.75))
sketch8.addConstraint(Sketcher.Constraint("DistanceX", -1, 1, 8, 2, 59.45))
sketch8.addConstraint(Sketcher.Constraint("DistanceY", -1, 1, 8, 2, 37.72))
pad7 = doc.addObject("PartDesign::Pad", "Pad006")
body.addObject(pad7)
pad7.Profile = sketch8
pad7.Length = 5
pad7.Reversed = True

# Sketch on XY plane
sketch9 = doc.addObject("Sketcher::SketchObject", "Sketch008")
body.addObject(sketch9)
sketch9.AttachmentSupport = (doc.XY_Plane, [""])
sketch9.MapMode = "FlatFace"
sketch9.AttachmentOffset = App.Placement(V(0, 0, -1.6), App.Rotation())
sketch9.addGeometry(Part.LineSegment(V(36.3, -1.5, 0), V(36.3, -5.9, 0)), False)
sketch9.addGeometry(Part.LineSegment(V(36.3, -5.9, 0), V(26.7, -5.9, 0)), False)
sketch9.addGeometry(Part.LineSegment(V(26.7, -5.9, 0), V(26.7, -1.5, 0)), False)
sketch9.addGeometry(Part.LineSegment(V(26.7, -1.5, 0), V(36.3, -1.5, 0)), False)
sketch9.addGeometry(Part.LineSegment(V(49.6, -1.5, 0), V(49.6, -5.9, 0)), False)
sketch9.addGeometry(Part.LineSegment(V(49.6, -5.9, 0), V(39.9, -5.9, 0)), False)
sketch9.addGeometry(Part.LineSegment(V(39.9, -5.9, 0), V(39.9, -1.5, 0)), False)
sketch9.addGeometry(Part.LineSegment(V(39.9, -1.5, 0), V(49.6, -1.5, 0)), False)
sketch9.addConstraint(Sketcher.Constraint("Coincident", 0, 2, 1, 1))
sketch9.addConstraint(Sketcher.Constraint("Coincident", 1, 2, 2, 1))
sketch9.addConstraint(Sketcher.Constraint("Coincident", 2, 2, 3, 1))
sketch9.addConstraint(Sketcher.Constraint("Coincident", 3, 2, 0, 1))
sketch9.addConstraint(Sketcher.Constraint("Coincident", 4, 2, 5, 1))
sketch9.addConstraint(Sketcher.Constraint("Coincident", 5, 2, 6, 1))
sketch9.addConstraint(Sketcher.Constraint("Coincident", 6, 2, 7, 1))
sketch9.addConstraint(Sketcher.Constraint("Coincident", 7, 2, 4, 1))
sketch9.addConstraint(Sketcher.Constraint("Vertical", 0))
sketch9.addConstraint(Sketcher.Constraint("Horizontal", 1))
sketch9.addConstraint(Sketcher.Constraint("Vertical", 2))
sketch9.addConstraint(Sketcher.Constraint("Horizontal", 3))
sketch9.addConstraint(Sketcher.Constraint("Vertical", 4))
sketch9.addConstraint(Sketcher.Constraint("Horizontal", 5))
sketch9.addConstraint(Sketcher.Constraint("Vertical", 6))
sketch9.addConstraint(Sketcher.Constraint("Horizontal", 7))
sketch9.addConstraint(Sketcher.Constraint("Horizontal", 1, 2, 4, 2))
sketch9.addConstraint(Sketcher.Constraint("Horizontal", 3, 2, 6, 2))
sketch9.addConstraint(Sketcher.Constraint("DistanceX", 5, 2, 5, 1, 9.65))
sketch9.addConstraint(Sketcher.Constraint("DistanceX", 1, 2, 4, 2, 22.9))
sketch9.addConstraint(Sketcher.Constraint("DistanceY", 2, 2, -1, 1, 1.53))
sketch9.addConstraint(Sketcher.Constraint("DistanceX", -1, 1, 1, 2, 26.675))
sketch9.addConstraint(Sketcher.Constraint("DistanceX", 1, 2, 1, 1, 9.65005))
sketch9.addConstraint(Sketcher.Constraint("DistanceY", 0, 2, 0, 1, 4.37005))
pad8 = doc.addObject("PartDesign::Pad", "Pad007")
body.addObject(pad8)
pad8.Profile = sketch9
pad8.Length = 5
pad8.Reversed = True

doc.recompute()
